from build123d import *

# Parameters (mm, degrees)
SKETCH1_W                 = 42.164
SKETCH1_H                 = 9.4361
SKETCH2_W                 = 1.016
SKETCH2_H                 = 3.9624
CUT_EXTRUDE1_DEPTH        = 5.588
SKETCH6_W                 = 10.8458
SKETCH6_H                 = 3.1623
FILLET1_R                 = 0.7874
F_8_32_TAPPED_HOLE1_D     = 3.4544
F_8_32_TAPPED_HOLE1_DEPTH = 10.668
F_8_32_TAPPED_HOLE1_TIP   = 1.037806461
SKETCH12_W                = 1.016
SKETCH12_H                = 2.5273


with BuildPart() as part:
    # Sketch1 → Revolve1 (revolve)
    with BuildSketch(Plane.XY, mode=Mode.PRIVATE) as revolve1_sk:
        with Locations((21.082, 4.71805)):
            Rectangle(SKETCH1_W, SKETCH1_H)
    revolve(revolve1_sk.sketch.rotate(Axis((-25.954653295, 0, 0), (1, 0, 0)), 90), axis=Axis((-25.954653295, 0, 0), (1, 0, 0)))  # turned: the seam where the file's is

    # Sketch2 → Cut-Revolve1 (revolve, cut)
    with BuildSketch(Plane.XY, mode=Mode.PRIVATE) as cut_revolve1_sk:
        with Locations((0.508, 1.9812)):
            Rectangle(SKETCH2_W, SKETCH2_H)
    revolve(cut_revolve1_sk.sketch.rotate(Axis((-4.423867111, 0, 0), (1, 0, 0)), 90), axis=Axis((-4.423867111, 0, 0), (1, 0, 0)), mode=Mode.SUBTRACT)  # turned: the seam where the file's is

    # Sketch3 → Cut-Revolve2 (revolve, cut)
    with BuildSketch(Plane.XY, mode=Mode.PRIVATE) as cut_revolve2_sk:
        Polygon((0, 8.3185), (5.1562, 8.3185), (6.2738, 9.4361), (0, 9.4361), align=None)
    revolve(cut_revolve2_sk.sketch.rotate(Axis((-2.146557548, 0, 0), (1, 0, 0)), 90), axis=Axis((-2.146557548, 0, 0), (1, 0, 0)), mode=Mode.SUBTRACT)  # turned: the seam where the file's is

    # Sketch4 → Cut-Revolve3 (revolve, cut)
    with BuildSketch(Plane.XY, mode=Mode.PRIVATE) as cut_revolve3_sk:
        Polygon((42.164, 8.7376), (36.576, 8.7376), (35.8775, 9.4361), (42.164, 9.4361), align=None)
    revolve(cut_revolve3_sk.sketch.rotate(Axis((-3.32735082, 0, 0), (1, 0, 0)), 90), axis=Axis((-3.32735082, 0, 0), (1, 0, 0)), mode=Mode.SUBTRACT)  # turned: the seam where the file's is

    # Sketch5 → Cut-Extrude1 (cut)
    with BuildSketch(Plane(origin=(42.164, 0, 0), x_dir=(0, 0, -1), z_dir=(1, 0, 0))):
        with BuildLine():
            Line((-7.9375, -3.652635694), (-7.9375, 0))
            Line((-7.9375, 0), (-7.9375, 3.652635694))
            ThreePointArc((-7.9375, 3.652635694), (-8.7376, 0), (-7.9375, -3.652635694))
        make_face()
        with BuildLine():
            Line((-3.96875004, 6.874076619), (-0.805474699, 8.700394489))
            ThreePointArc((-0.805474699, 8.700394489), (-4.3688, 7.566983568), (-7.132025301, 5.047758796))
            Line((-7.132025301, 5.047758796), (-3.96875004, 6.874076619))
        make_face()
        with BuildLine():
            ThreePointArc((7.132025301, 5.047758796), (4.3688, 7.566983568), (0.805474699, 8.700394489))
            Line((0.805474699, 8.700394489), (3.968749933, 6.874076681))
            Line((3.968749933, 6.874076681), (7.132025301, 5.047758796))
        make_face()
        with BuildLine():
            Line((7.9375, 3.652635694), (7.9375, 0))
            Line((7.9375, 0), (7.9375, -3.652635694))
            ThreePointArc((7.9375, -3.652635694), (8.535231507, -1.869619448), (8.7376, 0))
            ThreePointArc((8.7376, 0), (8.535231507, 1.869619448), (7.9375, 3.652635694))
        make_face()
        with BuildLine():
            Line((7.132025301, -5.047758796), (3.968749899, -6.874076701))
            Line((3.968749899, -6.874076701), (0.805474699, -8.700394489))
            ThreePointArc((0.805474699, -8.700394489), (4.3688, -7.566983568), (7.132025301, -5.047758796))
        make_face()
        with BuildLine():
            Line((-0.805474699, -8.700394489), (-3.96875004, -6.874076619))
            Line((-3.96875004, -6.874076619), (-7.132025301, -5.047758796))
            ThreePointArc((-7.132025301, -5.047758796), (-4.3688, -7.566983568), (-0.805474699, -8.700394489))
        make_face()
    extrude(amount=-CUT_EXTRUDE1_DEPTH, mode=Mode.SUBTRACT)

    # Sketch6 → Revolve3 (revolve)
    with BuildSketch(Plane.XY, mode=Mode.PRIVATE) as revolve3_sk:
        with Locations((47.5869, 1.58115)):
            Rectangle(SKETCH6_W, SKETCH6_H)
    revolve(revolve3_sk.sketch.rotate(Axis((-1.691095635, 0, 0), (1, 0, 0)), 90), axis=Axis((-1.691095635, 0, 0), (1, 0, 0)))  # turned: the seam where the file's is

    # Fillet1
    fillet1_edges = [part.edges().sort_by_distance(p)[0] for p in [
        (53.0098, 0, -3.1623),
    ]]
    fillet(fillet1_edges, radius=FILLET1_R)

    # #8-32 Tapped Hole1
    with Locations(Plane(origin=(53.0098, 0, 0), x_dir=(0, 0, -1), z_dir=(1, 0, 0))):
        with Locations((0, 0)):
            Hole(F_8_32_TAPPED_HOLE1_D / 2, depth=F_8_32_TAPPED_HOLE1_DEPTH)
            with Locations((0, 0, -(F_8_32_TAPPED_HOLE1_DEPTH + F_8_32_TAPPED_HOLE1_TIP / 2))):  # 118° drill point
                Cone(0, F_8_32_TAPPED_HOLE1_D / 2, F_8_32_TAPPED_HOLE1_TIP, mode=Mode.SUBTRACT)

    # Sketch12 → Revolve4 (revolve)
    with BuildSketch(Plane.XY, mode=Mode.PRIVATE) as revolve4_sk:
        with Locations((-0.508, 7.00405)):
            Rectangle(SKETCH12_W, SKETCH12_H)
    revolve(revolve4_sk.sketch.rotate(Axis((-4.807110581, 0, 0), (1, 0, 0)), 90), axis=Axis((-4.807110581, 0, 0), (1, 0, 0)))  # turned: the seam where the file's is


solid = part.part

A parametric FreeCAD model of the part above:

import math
import FreeCAD as App
import Part
import Sketcher
from FreeCAD import Vector
Q = App.Units.Quantity


def edges_at(feature, points):
    """Names of the edges that pass closest to the given points."""
    edges = feature.Shape.Edges
    near = lambda p: min(range(len(edges)), key=lambda i: edges[i].distToShape(Part.Vertex(*p))[0])
    return sorted({f"Edge{near(p) + 1}" for p in points})

doc = App.newDocument("Part")
body = doc.addObject("PartDesign::Body", "Body")

# Sketch on XY plane
sketch1 = body.newObject("Sketcher::SketchObject", "Sketch")
sketch1.AttachmentSupport = (doc.getObject("XY_Plane"), [""])
sketch1.MapMode = "FlatFace"
sketch1.addGeometry([
    Part.LineSegment(Vector(0, 9, 0), Vector(0, 0, 0)),
    Part.LineSegment(Vector(0, 0, 0), Vector(42, 0, 0)),
    Part.LineSegment(Vector(42, 0, 0), Vector(42, 9, 0)),
    Part.LineSegment(Vector(42, 9, 0), Vector(0, 9, 0)),
], False)
sketch1.addConstraint([
    Sketcher.Constraint("Coincident", 0, 2, 1, 1),
    Sketcher.Constraint("Coincident", 1, 2, 2, 1),
    Sketcher.Constraint("Coincident", 2, 2, 3, 1),
    Sketcher.Constraint("Coincident", 3, 2, 0, 1),
    Sketcher.Constraint("Vertical", 0),
    Sketcher.Constraint("Horizontal", 1),
    Sketcher.Constraint("Vertical", 2),
    Sketcher.Constraint("Horizontal", 3),
    Sketcher.Constraint("Coincident", 0, 2, -1, 1),
    Sketcher.Constraint("DistanceX", 1, 1, 1, 2, Q("1.66 in")),
    Sketcher.Constraint("DistanceY", 0, 2, 0, 1, Q("0.3715 in")),
])
revolution = body.newObject("PartDesign::Revolution", "Revolution")
revolution.Profile = sketch1
revolution.ReferenceAxis = (sketch1, ["H_Axis"])
revolution.Angle = 360

# Sketch on XY plane
sketch2 = body.newObject("Sketcher::SketchObject", "Sketch001")
sketch2.AttachmentSupport = (doc.getObject("XY_Plane"), [""])
sketch2.MapMode = "FlatFace"
sketch2.addGeometry([
    Part.LineSegment(Vector(0, 4, 0), Vector(0, 0, 0)),
    Part.LineSegment(Vector(0, 0, 0), Vector(1, 0, 0)),
    Part.LineSegment(Vector(1, 0, 0), Vector(1, 4, 0)),
    Part.LineSegment(Vector(1, 4, 0), Vector(0, 4, 0)),
], False)
sketch2.addConstraint([
    Sketcher.Constraint("Coincident", 0, 2, 1, 1),
    Sketcher.Constraint("Coincident", 1, 2, 2, 1),
    Sketcher.Constraint("Coincident", 2, 2, 3, 1),
    Sketcher.Constraint("Coincident", 3, 2, 0, 1),
    Sketcher.Constraint("Vertical", 0),
    Sketcher.Constraint("Horizontal", 1),
    Sketcher.Constraint("Vertical", 2),
    Sketcher.Constraint("Horizontal", 3),
    Sketcher.Constraint("Coincident", 0, 2, -1, 1),
    Sketcher.Constraint("DistanceX", 1, 1, 1, 2, Q("0.04 in")),
    Sketcher.Constraint("DistanceY", 0, 2, 0, 1, Q("0.156 in")),
])
groove = body.newObject("PartDesign::Groove", "Groove")
groove.Profile = sketch2
groove.ReferenceAxis = (sketch2, ["H_Axis"])
groove.Angle = 360

# Sketch on XY plane
sketch3 = body.newObject("Sketcher::SketchObject", "Sketch002")
sketch3.AttachmentSupport = (doc.getObject("XY_Plane"), [""])
sketch3.MapMode = "FlatFace"
sketch3.addGeometry([
    Part.LineSegment(Vector(0, 8.3, 0), Vector(5.2, 8.3, 0)),
    Part.LineSegment(Vector(5.2, 8.3, 0), Vector(6.3, 9.4, 0)),
    Part.LineSegment(Vector(6.3, 9.4, 0), Vector(0, 9.4, 0)),
    Part.LineSegment(Vector(0, 9.4, 0), Vector(0, 8.3, 0)),
], False)
sketch3.addConstraint([
    Sketcher.Constraint("Coincident", 0, 2, 1, 1),
    Sketcher.Constraint("Coincident", 1, 2, 2, 1),
    Sketcher.Constraint("Coincident", 2, 2, 3, 1),
    Sketcher.Constraint("Coincident", 3, 2, 0, 1),
    Sketcher.Constraint("Horizontal", 0),
    Sketcher.Constraint("Horizontal", 2),
    Sketcher.Constraint("Vertical", 3),
    Sketcher.Constraint("PointOnObject", 2, 2, -2),
    Sketcher.Constraint("Angle", 1, Q("45 deg")),
    Sketcher.Constraint("DistanceX", 0, 1, 0, 2, Q("0.203 in")),
    Sketcher.Constraint("DistanceX", 2, 2, 2, 1, Q("0.247 in")),
    Sketcher.Constraint("DistanceY", -1, 1, 0, 2, Q("0.3275 in")),
])
groove2 = body.newObject("PartDesign::Groove", "Groove001")
groove2.Profile = sketch3
groove2.ReferenceAxis = (sketch3, ["H_Axis"])
groove2.Angle = 360

# Sketch on XY plane
sketch4 = body.newObject("Sketcher::SketchObject", "Sketch003")
sketch4.AttachmentSupport = (doc.getObject("XY_Plane"), [""])
sketch4.MapMode = "FlatFace"
sketch4.addGeometry([
    Part.LineSegment(Vector(36.6, 8.7, 0), Vector(42.2, 8.7, 0)),
    Part.LineSegment(Vector(42.2, 8.7, 0), Vector(42.2, 9.4, 0)),
    Part.LineSegment(Vector(42.2, 9.4, 0), Vector(35.9, 9.4, 0)),
    Part.LineSegment(Vector(35.9, 9.4, 0), Vector(36.6, 8.7, 0)),
], False)
sketch4.addConstraint([
    Sketcher.Constraint("Coincident", 0, 2, 1, 1),
    Sketcher.Constraint("Coincident", 1, 2, 2, 1),
    Sketcher.Constraint("Coincident", 2, 2, 3, 1),
    Sketcher.Constraint("Coincident", 3, 2, 0, 1),
    Sketcher.Constraint("Horizontal", 0),
    Sketcher.Constraint("Vertical", 1),
    Sketcher.Constraint("Horizontal", 2),
    Sketcher.Constraint("Angle", 3, Q("-45 deg")),
    Sketcher.Constraint("DistanceX", 0, 1, 0, 2, Q("0.22 in")),
    Sketcher.Constraint("DistanceX", -1, 1, 0, 2, Q("1.66 in")),
    Sketcher.Constraint("DistanceX", 2, 2, 2, 1, Q("0.2475 in")),
    Sketcher.Constraint("DistanceY", -1, 1, 0, 2, Q("0.344 in")),
])
groove3 = body.newObject("PartDesign::Groove", "Groove002")
groove3.Profile = sketch4
groove3.ReferenceAxis = (sketch4, ["H_Axis"])
groove3.Angle = 360

# Sketch on YZ plane
sketch5 = body.newObject("Sketcher::SketchObject", "Sketch004")
sketch5.AttachmentSupport = (doc.getObject("YZ_Plane"), [""])
sketch5.MapMode = "FlatFace"
sketch5.AttachmentOffset = App.Placement(Vector(0, 0, 1.66 * 25.4), App.Rotation())
sketch5.addGeometry([
    Part.LineSegment(Vector(-3.7, 7.9, 0), Vector(3.7, 7.9, 0)),  # 0
    Part.ArcOfCircle(Part.Circle(Vector(0, 0, 0), Vector(0, 0, 1), 8.7), math.radians(65), math.radians(115)),  # 1
    Part.LineSegment(Vector(6.9, 4, 0), Vector(8.7, 0.8, 0)),  # 2
    Part.ArcOfCircle(Part.Circle(Vector(0, 0, 0), Vector(0, 0, 1), 8.7), math.radians(5), math.radians(55)),  # 3
    Part.LineSegment(Vector(5, 7.1, 0), Vector(6.9, 4, 0)),  # 4
    Part.ArcOfCircle(Part.Circle(Vector(0, 0, 0), Vector(0, 0, 1), 8.7), math.radians(-55), math.radians(-5)),  # 5
    Part.LineSegment(Vector(8.7, -0.8, 0), Vector(6.9, -4, 0)),  # 6
    Part.LineSegment(Vector(6.9, -4, 0), Vector(5, -7.1, 0)),  # 7
    Part.LineSegment(Vector(3.7, -7.9, 0), Vector(-3.7, -7.9, 0)),  # 8
    Part.ArcOfCircle(Part.Circle(Vector(0, 0, 0), Vector(0, 0, 1), 8.7), math.radians(-115), math.radians(-90)),  # 9
    Part.ArcOfCircle(Part.Circle(Vector(0, 0, 0), Vector(0, 0, 1), 8.7), math.radians(-90), math.radians(-65)),  # 10
    Part.LineSegment(Vector(-5, -7.1, 0), Vector(-6.9, -4, 0)),  # 11
    Part.LineSegment(Vector(-6.9, -4, 0), Vector(-8.7, -0.8, 0)),  # 12
    Part.ArcOfCircle(Part.Circle(Vector(0, 0, 0), Vector(0, 0, 1), 8.7), math.radians(-175), math.radians(-125)),  # 13
    Part.LineSegment(Vector(-8.7, 0.8, 0), Vector(-6.9, 4, 0)),  # 14
    Part.LineSegment(Vector(-6.9, 4, 0), Vector(-5, 7.1, 0)),  # 15
    Part.ArcOfCircle(Part.Circle(Vector(0, 0, 0), Vector(0, 0, 1), 8.7), math.radians(125), math.radians(175)),  # 16
], False)
sketch5.addConstraint([
    Sketcher.Constraint("Coincident", 0, 1, 1, 2),
    Sketcher.Constraint("Coincident", 1, 1, 0, 2),
    Sketcher.Constraint("Coincident", 2, 2, 3, 1),
    Sketcher.Constraint("Coincident", 3, 2, 4, 1),
    Sketcher.Constraint("Coincident", 4, 2, 2, 1),
    Sketcher.Constraint("Coincident", 5, 2, 6, 1),
    Sketcher.Constraint("Coincident", 6, 2, 7, 1),
    Sketcher.Constraint("Coincident", 7, 2, 5, 1),
    Sketcher.Constraint("Coincident", 8, 2, 9, 1),
    Sketcher.Constraint("Tangent", 9, 2, 10, 1),
    Sketcher.Constraint("Coincident", 10, 2, 8, 1),
    Sketcher.Constraint("Coincident", 11, 2, 12, 1),
    Sketcher.Constraint("Coincident", 12, 2, 13, 1),
    Sketcher.Constraint("Coincident", 13, 2, 11, 1),
    Sketcher.Constraint("Coincident", 14, 2, 15, 1),
    Sketcher.Constraint("Coincident", 15, 2, 16, 1),
    Sketcher.Constraint("Coincident", 16, 2, 14, 1),
    Sketcher.Constraint("Horizontal", 0),
    Sketcher.Constraint("Horizontal", 8),
    Sketcher.Constraint("Coincident", 1, 3, -1, 1),
    Sketcher.Constraint("Coincident", 3, 3, -1, 1),
    Sketcher.Constraint("Coincident", 5, 3, -1, 1),
    Sketcher.Constraint("Coincident", 9, 3, -1, 1),
    Sketcher.Constraint("Coincident", 13, 3, -1, 1),
    Sketcher.Constraint("Coincident", 16, 3, -1, 1),
    Sketcher.Constraint("Equal", 1, 3),
    Sketcher.Constraint("Equal", 3, 5),
    Sketcher.Constraint("Equal", 5, 9),
    Sketcher.Constraint("Equal", 9, 10),
    Sketcher.Constraint("Equal", 10, 13),
    Sketcher.Constraint("Equal", 13, 16),
    Sketcher.Constraint("Symmetric", 4, 2, 11, 2, -1, 1),
    Sketcher.Constraint("Symmetric", 6, 2, 14, 2, -1, 1),
    Sketcher.Constraint("Symmetric", 6, 2, 11, 2, -2),
    Sketcher.Constraint("PointOnObject", 9, 2, -2),
    Sketcher.Constraint("Parallel", 2, 4),
    Sketcher.Constraint("Parallel", 6, 7),
    Sketcher.Constraint("Parallel", 4, 11),
    Sketcher.Constraint("Parallel", 11, 12),
    Sketcher.Constraint("Parallel", 7, 14),
    Sketcher.Constraint("Parallel", 14, 15),
    Sketcher.Constraint("Horizontal", 5, 2, 12, 2),
    Sketcher.Constraint("Vertical", 0, 1, 8, 2),
    Sketcher.Constraint("Equal", 2, 4),
    Sketcher.Constraint("Angle", 2, Q("-60 deg")),
    Sketcher.Constraint("Radius", 1, Q("0.344 in")),
    Sketcher.Constraint("DistanceY", -1, 1, 0, 1, Q("0.3125 in")),
    Sketcher.Constraint("DistanceY", -1, 1, 4, 2, Q("0.15625 in")),
])
pocket1 = body.newObject("PartDesign::Pocket", "Pocket")
pocket1.Profile = sketch5
pocket1.Length = Q("0.22 in")

# Sketch on XY plane
sketch6 = body.newObject("Sketcher::SketchObject", "Sketch005")
sketch6.AttachmentSupport = (doc.getObject("XY_Plane"), [""])
sketch6.MapMode = "FlatFace"
sketch6.addGeometry([
    Part.LineSegment(Vector(42.2, 3.2, 0), Vector(42.2, 0, 0)),
    Part.LineSegment(Vector(42.2, 0, 0), Vector(53, 0, 0)),
    Part.LineSegment(Vector(53, 0, 0), Vector(53, 3.2, 0)),
    Part.LineSegment(Vector(53, 3.2, 0), Vector(42.2, 3.2, 0)),
], False)
sketch6.addConstraint([
    Sketcher.Constraint("Coincident", 0, 2, 1, 1),
    Sketcher.Constraint("Coincident", 1, 2, 2, 1),
    Sketcher.Constraint("Coincident", 2, 2, 3, 1),
    Sketcher.Constraint("Coincident", 3, 2, 0, 1),
    Sketcher.Constraint("Vertical", 0),
    Sketcher.Constraint("Horizontal", 1),
    Sketcher.Constraint("Vertical", 2),
    Sketcher.Constraint("Horizontal", 3),
    Sketcher.Constraint("PointOnObject", 0, 2, -1),
    Sketcher.Constraint("DistanceX", 1, 1, 1, 2, Q("0.427 in")),
    Sketcher.Constraint("DistanceX", -1, 1, 0, 2, Q("1.66 in")),
    Sketcher.Constraint("DistanceY", 0, 2, 0, 1, Q("0.1245 in")),
])
revolution2 = body.newObject("PartDesign::Revolution", "Revolution001")
revolution2.Profile = sketch6
revolution2.ReferenceAxis = (sketch6, ["H_Axis"])
revolution2.Angle = 360
doc.recompute()

fillet = body.newObject("PartDesign::Fillet", "Fillet")
fillet.Base = (revolution2, edges_at(revolution2, [(53.01, 0, -3.162)]))
fillet.Radius = Q("0.031 in")

# Sketch on YZ plane
sketch7 = body.newObject("Sketcher::SketchObject", "Sketch006")
sketch7.AttachmentSupport = (doc.getObject("YZ_Plane"), [""])
sketch7.MapMode = "FlatFace"
sketch7.AttachmentOffset = App.Placement(Vector(0, 0, 2.087 * 25.4), App.Rotation())
sketch7.addGeometry(Part.Circle(Vector(0, 0, 0), Vector(0, 0, 1), 1.7), False)
sketch7.addConstraint([
    Sketcher.Constraint("Coincident", 0, 3, -1, 1),
    Sketcher.Constraint("Diameter", 0, Q("0.136 in")),
])
doc.recompute()
hole = body.newObject("PartDesign::Hole", "Hole")
hole.Profile = sketch7
hole.ThreadType = "None"
hole.Diameter = Q("0.136 in")
hole.DepthType = "Dimension"
hole.Depth = Q("0.42 in")
hole.DrillPoint = "Angled"
hole.DrillPointAngle = 118

# Sketch on XY plane
sketch8 = body.newObject("Sketcher::SketchObject", "Sketch007")
sketch8.AttachmentSupport = (doc.getObject("XY_Plane"), [""])
sketch8.MapMode = "FlatFace"
sketch8.addGeometry([
    Part.LineSegment(Vector(-1, 8.3, 0), Vector(-1, 5.7, 0)),
    Part.LineSegment(Vector(-1, 5.7, 0), Vector(0, 5.7, 0)),
    Part.LineSegment(Vector(0, 5.7, 0), Vector(0, 8.3, 0)),
    Part.LineSegment(Vector(0, 8.3, 0), Vector(-1, 8.3, 0)),
], False)
sketch8.addConstraint([
    Sketcher.Constraint("Coincident", 0, 2, 1, 1),
    Sketcher.Constraint("Coincident", 1, 2, 2, 1),
    Sketcher.Constraint("Coincident", 2, 2, 3, 1),
    Sketcher.Constraint("Coincident", 3, 2, 0, 1),
    Sketcher.Constraint("Vertical", 0),
    Sketcher.Constraint("Horizontal", 1),
    Sketcher.Constraint("Vertical", 2),
    Sketcher.Constraint("Horizontal", 3),
    Sketcher.Constraint("PointOnObject", 1, 2, -2),
    Sketcher.Constraint("DistanceX", 1, 1, 1, 2, Q("0.04 in")),
    Sketcher.Constraint("DistanceY", 0, 2, 0, 1, Q("0.0995 in")),
    Sketcher.Constraint("DistanceY", -1, 1, 0, 2, Q("0.226 in")),
])
revolution3 = body.newObject("PartDesign::Revolution", "Revolution002")
revolution3.Profile = sketch8
revolution3.ReferenceAxis = (sketch8, ["H_Axis"])
revolution3.Angle = 360

doc.recompute()
